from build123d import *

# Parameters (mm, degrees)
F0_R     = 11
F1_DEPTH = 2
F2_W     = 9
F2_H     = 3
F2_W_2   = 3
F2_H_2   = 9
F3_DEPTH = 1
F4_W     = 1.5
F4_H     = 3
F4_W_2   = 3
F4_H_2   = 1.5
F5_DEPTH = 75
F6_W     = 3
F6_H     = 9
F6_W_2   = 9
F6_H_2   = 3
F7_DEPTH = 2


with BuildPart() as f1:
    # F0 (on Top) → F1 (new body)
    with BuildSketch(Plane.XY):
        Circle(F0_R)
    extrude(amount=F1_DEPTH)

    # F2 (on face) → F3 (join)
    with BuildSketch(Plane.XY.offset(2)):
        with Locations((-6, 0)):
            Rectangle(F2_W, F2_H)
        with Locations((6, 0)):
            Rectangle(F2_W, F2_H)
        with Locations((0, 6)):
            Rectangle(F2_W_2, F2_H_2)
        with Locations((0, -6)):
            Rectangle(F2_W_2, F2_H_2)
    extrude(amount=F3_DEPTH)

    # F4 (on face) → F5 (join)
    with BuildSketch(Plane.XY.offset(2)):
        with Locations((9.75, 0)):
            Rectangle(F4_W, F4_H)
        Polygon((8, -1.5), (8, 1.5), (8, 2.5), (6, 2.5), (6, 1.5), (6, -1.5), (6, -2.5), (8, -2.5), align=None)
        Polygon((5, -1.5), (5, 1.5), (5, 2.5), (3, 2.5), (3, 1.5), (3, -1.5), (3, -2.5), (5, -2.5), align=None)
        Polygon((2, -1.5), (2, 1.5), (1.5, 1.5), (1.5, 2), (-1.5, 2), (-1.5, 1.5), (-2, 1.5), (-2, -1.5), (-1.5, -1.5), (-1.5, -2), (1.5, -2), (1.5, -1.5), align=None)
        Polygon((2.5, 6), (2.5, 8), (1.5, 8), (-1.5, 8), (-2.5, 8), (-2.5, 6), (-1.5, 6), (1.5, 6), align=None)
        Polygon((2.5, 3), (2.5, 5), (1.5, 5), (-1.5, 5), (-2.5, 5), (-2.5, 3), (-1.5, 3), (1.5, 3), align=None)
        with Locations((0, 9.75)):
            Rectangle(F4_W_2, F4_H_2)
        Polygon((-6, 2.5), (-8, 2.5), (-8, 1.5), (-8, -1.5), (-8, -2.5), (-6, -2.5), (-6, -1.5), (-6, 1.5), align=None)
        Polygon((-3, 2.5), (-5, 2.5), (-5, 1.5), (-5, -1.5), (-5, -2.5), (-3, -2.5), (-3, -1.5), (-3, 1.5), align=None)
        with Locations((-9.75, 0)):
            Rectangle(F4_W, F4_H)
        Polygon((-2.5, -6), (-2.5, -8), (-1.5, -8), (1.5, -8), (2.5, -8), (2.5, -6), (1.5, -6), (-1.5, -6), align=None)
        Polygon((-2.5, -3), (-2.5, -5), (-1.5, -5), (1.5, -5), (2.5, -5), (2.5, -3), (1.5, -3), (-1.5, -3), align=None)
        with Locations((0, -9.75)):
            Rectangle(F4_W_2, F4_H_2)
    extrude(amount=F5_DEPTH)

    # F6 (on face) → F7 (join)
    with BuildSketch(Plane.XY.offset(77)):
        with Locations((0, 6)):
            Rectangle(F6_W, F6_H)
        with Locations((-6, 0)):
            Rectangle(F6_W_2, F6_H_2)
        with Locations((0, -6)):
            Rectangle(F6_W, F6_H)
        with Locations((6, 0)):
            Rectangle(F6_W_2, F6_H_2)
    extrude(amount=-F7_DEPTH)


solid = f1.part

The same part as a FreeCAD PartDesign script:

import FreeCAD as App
import Part
import Sketcher

V = App.Vector

doc = App.newDocument("Part")
body = doc.addObject("PartDesign::Body", "Body")

sketch1 = doc.addObject("Sketcher::SketchObject", "Sketch")
body.addObject(sketch1)
sketch1.AttachmentSupport = (doc.XY_Plane, [""])
sketch1.MapMode = "FlatFace"
sketch1.addGeometry(Part.Circle(V(0, 0, 0), V(0, 0, 1), 11), False)
sketch1.addConstraint([
    Sketcher.Constraint("Coincident", 0, 3, -1, 1),
    Sketcher.Constraint("Diameter", 0, 22.0),
])
pad1 = doc.addObject("PartDesign::Pad", "Pad")
body.addObject(pad1)
pad1.Profile = sketch1
pad1.Length = 2

sketch2 = doc.addObject("Sketcher::SketchObject", "Sketch001")
body.addObject(sketch2)
sketch2.AttachmentSupport = (doc.XY_Plane, [""])
sketch2.MapMode = "FlatFace"
sketch2.AttachmentOffset = App.Placement(V(0, 0, 2), App.Rotation())
sketch2.addGeometry([
    Part.LineSegment(V(-10.5, 1.5, 0), V(-10.5, -1.5, 0)),
    Part.LineSegment(V(-10.5, -1.5, 0), V(-1.5, -1.5, 0)),
    Part.LineSegment(V(-1.5, -1.5, 0), V(-1.5, 1.5, 0)),
    Part.LineSegment(V(-1.5, 1.5, 0), V(-10.5, 1.5, 0)),
    Part.LineSegment(V(1.5, 1.5, 0), V(1.5, -1.5, 0)),
    Part.LineSegment(V(1.5, -1.5, 0), V(10.5, -1.5, 0)),
    Part.LineSegment(V(10.5, -1.5, 0), V(10.5, 1.5, 0)),
    Part.LineSegment(V(10.5, 1.5, 0), V(1.5, 1.5, 0)),
    Part.LineSegment(V(-1.5, 10.5, 0), V(-1.5, 1.5, 0)),
    Part.LineSegment(V(-1.5, 1.5, 0), V(1.5, 1.5, 0)),
    Part.LineSegment(V(1.5, 1.5, 0), V(1.5, 10.5, 0)),
    Part.LineSegment(V(1.5, 10.5, 0), V(-1.5, 10.5, 0)),
    Part.LineSegment(V(-1.5, -1.5, 0), V(-1.5, -10.5, 0)),
    Part.LineSegment(V(-1.5, -10.5, 0), V(1.5, -10.5, 0)),
    Part.LineSegment(V(1.5, -10.5, 0), V(1.5, -1.5, 0)),
    Part.LineSegment(V(1.5, -1.5, 0), V(-1.5, -1.5, 0)),
], False)
sketch2.addConstraint([
    Sketcher.Constraint("Coincident", 0, 2, 1, 1),
    Sketcher.Constraint("Coincident", 1, 2, 2, 1),
    Sketcher.Constraint("Coincident", 2, 2, 3, 1),
    Sketcher.Constraint("Coincident", 3, 2, 0, 1),
    Sketcher.Constraint("Coincident", 4, 2, 5, 1),
    Sketcher.Constraint("Coincident", 5, 2, 6, 1),
    Sketcher.Constraint("Coincident", 6, 2, 7, 1),
    Sketcher.Constraint("Coincident", 7, 2, 4, 1),
    Sketcher.Constraint("Coincident", 8, 2, 9, 1),
    Sketcher.Constraint("Coincident", 9, 2, 10, 1),
    Sketcher.Constraint("Coincident", 10, 2, 11, 1),
    Sketcher.Constraint("Coincident", 11, 2, 8, 1),
    Sketcher.Constraint("Coincident", 12, 2, 13, 1),
    Sketcher.Constraint("Coincident", 13, 2, 14, 1),
    Sketcher.Constraint("Coincident", 14, 2, 15, 1),
    Sketcher.Constraint("Coincident", 15, 2, 12, 1),
    Sketcher.Constraint("Vertical", 0),
    Sketcher.Constraint("Horizontal", 1),
    Sketcher.Constraint("Vertical", 2),
    Sketcher.Constraint("Horizontal", 3),
    Sketcher.Constraint("Vertical", 4),
    Sketcher.Constraint("Horizontal", 5),
    Sketcher.Constraint("Vertical", 6),
    Sketcher.Constraint("Horizontal", 7),
    Sketcher.Constraint("Vertical", 8),
    Sketcher.Constraint("Horizontal", 9),
    Sketcher.Constraint("Vertical", 10),
    Sketcher.Constraint("Horizontal", 11),
    Sketcher.Constraint("Vertical", 12),
    Sketcher.Constraint("Horizontal", 13),
    Sketcher.Constraint("Vertical", 14),
    Sketcher.Constraint("Horizontal", 15),
    Sketcher.Constraint("Coincident", 8, 2, 2, 2),
    Sketcher.Constraint("Coincident", 9, 2, 7, 2),
    Sketcher.Constraint("Coincident", 14, 2, 4, 2),
    Sketcher.Constraint("Coincident", 15, 2, 1, 2),
    Sketcher.Constraint("Symmetric", 2, 2, 4, 2, -1, 1),
    Sketcher.Constraint("Equal", 3, 5),
    Sketcher.Constraint("Equal", 15, 0),
    Sketcher.Constraint("Equal", 7, 8),
    Sketcher.Constraint("Equal", 10, 12),
    Sketcher.Constraint("DistanceX", 1, 1, 1, 2, 9.0),
    Sketcher.Constraint("DistanceX", 9, 1, 9, 2, 3.0),
])
pad2 = doc.addObject("PartDesign::Pad", "Pad001")
body.addObject(pad2)
pad2.Profile = sketch2
pad2.Length = 1

sketch3 = doc.addObject("Sketcher::SketchObject", "Sketch002")
body.addObject(sketch3)
sketch3.AttachmentSupport = (doc.XY_Plane, [""])
sketch3.MapMode = "FlatFace"
sketch3.AttachmentOffset = App.Placement(V(0, 0, 2), App.Rotation())
sketch3.addGeometry([
    Part.LineSegment(V(9, 1.5, 0), V(9, -1.5, 0)),
    Part.LineSegment(V(9, -1.5, 0), V(10.5, -1.5, 0)),
    Part.LineSegment(V(10.5, -1.5, 0), V(10.5, 1.5, 0)),
    Part.LineSegment(V(10.5, 1.5, 0), V(9, 1.5, 0)),
    Part.LineSegment(V(8, 2.5, 0), V(6, 2.5, 0)),
    Part.LineSegment(V(6, 2.5, 0), V(6, -2.5, 0)),
    Part.LineSegment(V(6, -2.5, 0), V(8, -2.5, 0)),
    Part.LineSegment(V(8, -2.5, 0), V(8, 2.5, 0)),
    Part.LineSegment(V(5, 2.5, 0), V(3, 2.5, 0)),
    Part.LineSegment(V(3, 2.5, 0), V(3, -2.5, 0)),
    Part.LineSegment(V(3, -2.5, 0), V(5, -2.5, 0)),
    Part.LineSegment(V(5, -2.5, 0), V(5, 2.5, 0)),
    Part.LineSegment(V(2, -1.5, 0), V(2, 1.5, 0)),
    Part.LineSegment(V(2, 1.5, 0), V(1.5, 1.5, 0)),
    Part.LineSegment(V(1.5, 1.5, 0), V(1.5, 2, 0)),
    Part.LineSegment(V(1.5, 2, 0), V(-1.5, 2, 0)),
    Part.LineSegment(V(-1.5, 2, 0), V(-1.5, 1.5, 0)),
    Part.LineSegment(V(-1.5, 1.5, 0), V(-2, 1.5, 0)),
    Part.LineSegment(V(-2, 1.5, 0), V(-2, -1.5, 0)),
    Part.LineSegment(V(-2, -1.5, 0), V(-1.5, -1.5, 0)),
    Part.LineSegment(V(-1.5, -1.5, 0), V(-1.5, -2, 0)),
    Part.LineSegment(V(-1.5, -2, 0), V(1.5, -2, 0)),
    Part.LineSegment(V(1.5, -2, 0), V(1.5, -1.5, 0)),
    Part.LineSegment(V(1.5, -1.5, 0), V(2, -1.5, 0)),
    Part.LineSegment(V(2.5, 6, 0), V(2.5, 8, 0)),
    Part.LineSegment(V(2.5, 8, 0), V(-2.5, 8, 0)),
    Part.LineSegment(V(-2.5, 8, 0), V(-2.5, 6, 0)),
    Part.LineSegment(V(-2.5, 6, 0), V(2.5, 6, 0)),
    Part.LineSegment(V(2.5, 3, 0), V(2.5, 5, 0)),
    Part.LineSegment(V(2.5, 5, 0), V(-2.5, 5, 0)),
    Part.LineSegment(V(-2.5, 5, 0), V(-2.5, 3, 0)),
    Part.LineSegment(V(-2.5, 3, 0), V(2.5, 3, 0)),
    Part.LineSegment(V(-1.5, 10.5, 0), V(-1.5, 9, 0)),
    Part.LineSegment(V(-1.5, 9, 0), V(1.5, 9, 0)),
    Part.LineSegment(V(1.5, 9, 0), V(1.5, 10.5, 0)),
    Part.LineSegment(V(1.5, 10.5, 0), V(-1.5, 10.5, 0)),
    Part.LineSegment(V(-6, 2.5, 0), V(-8, 2.5, 0)),
    Part.LineSegment(V(-8, 2.5, 0), V(-8, -2.5, 0)),
    Part.LineSegment(V(-8, -2.5, 0), V(-6, -2.5, 0)),
    Part.LineSegment(V(-6, -2.5, 0), V(-6, 2.5, 0)),
    Part.LineSegment(V(-3, 2.5, 0), V(-5, 2.5, 0)),
    Part.LineSegment(V(-5, 2.5, 0), V(-5, -2.5, 0)),
    Part.LineSegment(V(-5, -2.5, 0), V(-3, -2.5, 0)),
    Part.LineSegment(V(-3, -2.5, 0), V(-3, 2.5, 0)),
    Part.LineSegment(V(-10.5, 1.5, 0), V(-10.5, -1.5, 0)),
    Part.LineSegment(V(-10.5, -1.5, 0), V(-9, -1.5, 0)),
    Part.LineSegment(V(-9, -1.5, 0), V(-9, 1.5, 0)),
    Part.LineSegment(V(-9, 1.5, 0), V(-10.5, 1.5, 0)),
    Part.LineSegment(V(-2.5, -6, 0), V(-2.5, -8, 0)),
    Part.LineSegment(V(-2.5, -8, 0), V(2.5, -8, 0)),
    Part.LineSegment(V(2.5, -8, 0), V(2.5, -6, 0)),
    Part.LineSegment(V(2.5, -6, 0), V(-2.5, -6, 0)),
    Part.LineSegment(V(-2.5, -3, 0), V(-2.5, -5, 0)),
    Part.LineSegment(V(-2.5, -5, 0), V(2.5, -5, 0)),
    Part.LineSegment(V(2.5, -5, 0), V(2.5, -3, 0)),
    Part.LineSegment(V(2.5, -3, 0), V(-2.5, -3, 0)),
    Part.LineSegment(V(-1.5, -9, 0), V(-1.5, -10.5, 0)),
    Part.LineSegment(V(-1.5, -10.5, 0), V(1.5, -10.5, 0)),
    Part.LineSegment(V(1.5, -10.5, 0), V(1.5, -9, 0)),
    Part.LineSegment(V(1.5, -9, 0), V(-1.5, -9, 0)),
], False)
sketch3.addConstraint([
    Sketcher.Constraint("Coincident", 0, 2, 1, 1),
    Sketcher.Constraint("Coincident", 1, 2, 2, 1),
    Sketcher.Constraint("Coincident", 2, 2, 3, 1),
    Sketcher.Constraint("Coincident", 3, 2, 0, 1),
    Sketcher.Constraint("Coincident", 4, 2, 5, 1),
    Sketcher.Constraint("Coincident", 5, 2, 6, 1),
    Sketcher.Constraint("Coincident", 6, 2, 7, 1),
    Sketcher.Constraint("Coincident", 7, 2, 4, 1),
    Sketcher.Constraint("Coincident", 8, 2, 9, 1),
    Sketcher.Constraint("Coincident", 9, 2, 10, 1),
    Sketcher.Constraint("Coincident", 10, 2, 11, 1),
    Sketcher.Constraint("Coincident", 11, 2, 8, 1),
    Sketcher.Constraint("Coincident", 12, 2, 13, 1),
    Sketcher.Constraint("Coincident", 13, 2, 14, 1),
    Sketcher.Constraint("Coincident", 14, 2, 15, 1),
    Sketcher.Constraint("Coincident", 15, 2, 16, 1),
    Sketcher.Constraint("Coincident", 16, 2, 17, 1),
    Sketcher.Constraint("Coincident", 17, 2, 18, 1),
    Sketcher.Constraint("Coincident", 18, 2, 19, 1),
    Sketcher.Constraint("Coincident", 19, 2, 20, 1),
    Sketcher.Constraint("Coincident", 20, 2, 21, 1),
    Sketcher.Constraint("Coincident", 21, 2, 22, 1),
    Sketcher.Constraint("Coincident", 22, 2, 23, 1),
    Sketcher.Constraint("Coincident", 23, 2, 12, 1),
    Sketcher.Constraint("Coincident", 24, 2, 25, 1),
    Sketcher.Constraint("Coincident", 25, 2, 26, 1),
    Sketcher.Constraint("Coincident", 26, 2, 27, 1),
    Sketcher.Constraint("Coincident", 27, 2, 24, 1),
    Sketcher.Constraint("Coincident", 28, 2, 29, 1),
    Sketcher.Constraint("Coincident", 29, 2, 30, 1),
    Sketcher.Constraint("Coincident", 30, 2, 31, 1),
    Sketcher.Constraint("Coincident", 31, 2, 28, 1),
    Sketcher.Constraint("Coincident", 32, 2, 33, 1),
    Sketcher.Constraint("Coincident", 33, 2, 34, 1),
    Sketcher.Constraint("Coincident", 34, 2, 35, 1),
    Sketcher.Constraint("Coincident", 35, 2, 32, 1),
    Sketcher.Constraint("Coincident", 36, 2, 37, 1),
    Sketcher.Constraint("Coincident", 37, 2, 38, 1),
    Sketcher.Constraint("Coincident", 38, 2, 39, 1),
    Sketcher.Constraint("Coincident", 39, 2, 36, 1),
    Sketcher.Constraint("Coincident", 40, 2, 41, 1),
    Sketcher.Constraint("Coincident", 41, 2, 42, 1),
    Sketcher.Constraint("Coincident", 42, 2, 43, 1),
    Sketcher.Constraint("Coincident", 43, 2, 40, 1),
    Sketcher.Constraint("Coincident", 44, 2, 45, 1),
    Sketcher.Constraint("Coincident", 45, 2, 46, 1),
    Sketcher.Constraint("Coincident", 46, 2, 47, 1),
    Sketcher.Constraint("Coincident", 47, 2, 44, 1),
    Sketcher.Constraint("Coincident", 48, 2, 49, 1),
    Sketcher.Constraint("Coincident", 49, 2, 50, 1),
    Sketcher.Constraint("Coincident", 50, 2, 51, 1),
    Sketcher.Constraint("Coincident", 51, 2, 48, 1),
    Sketcher.Constraint("Coincident", 52, 2, 53, 1),
    Sketcher.Constraint("Coincident", 53, 2, 54, 1),
    Sketcher.Constraint("Coincident", 54, 2, 55, 1),
    Sketcher.Constraint("Coincident", 55, 2, 52, 1),
    Sketcher.Constraint("Coincident", 56, 2, 57, 1),
    Sketcher.Constraint("Coincident", 57, 2, 58, 1),
    Sketcher.Constraint("Coincident", 58, 2, 59, 1),
    Sketcher.Constraint("Coincident", 59, 2, 56, 1),
    Sketcher.Constraint("Vertical", 0),
    Sketcher.Constraint("Horizontal", 1),
    Sketcher.Constraint("Vertical", 2),
    Sketcher.Constraint("Horizontal", 3),
    Sketcher.Constraint("Horizontal", 4),
    Sketcher.Constraint("Vertical", 5),
    Sketcher.Constraint("Horizontal", 6),
    Sketcher.Constraint("Vertical", 7),
    Sketcher.Constraint("Horizontal", 8),
    Sketcher.Constraint("Vertical", 9),
    Sketcher.Constraint("Horizontal", 10),
    Sketcher.Constraint("Vertical", 11),
    Sketcher.Constraint("Vertical", 12),
    Sketcher.Constraint("Horizontal", 13),
    Sketcher.Constraint("Vertical", 14),
    Sketcher.Constraint("Horizontal", 15),
    Sketcher.Constraint("Vertical", 16),
    Sketcher.Constraint("Horizontal", 17),
    Sketcher.Constraint("Vertical", 18),
    Sketcher.Constraint("Horizontal", 19),
    Sketcher.Constraint("Vertical", 20),
    Sketcher.Constraint("Horizontal", 21),
    Sketcher.Constraint("Vertical", 22),
    Sketcher.Constraint("Horizontal", 23),
    Sketcher.Constraint("Vertical", 24),
    Sketcher.Constraint("Horizontal", 25),
    Sketcher.Constraint("Vertical", 26),
    Sketcher.Constraint("Horizontal", 27),
    Sketcher.Constraint("Vertical", 28),
    Sketcher.Constraint("Horizontal", 29),
    Sketcher.Constraint("Vertical", 30),
    Sketcher.Constraint("Horizontal", 31),
    Sketcher.Constraint("Vertical", 32),
    Sketcher.Constraint("Horizontal", 33),
    Sketcher.Constraint("Vertical", 34),
    Sketcher.Constraint("Horizontal", 35),
    Sketcher.Constraint("Horizontal", 36),
    Sketcher.Constraint("Vertical", 37),
    Sketcher.Constraint("Horizontal", 38),
    Sketcher.Constraint("Vertical", 39),
    Sketcher.Constraint("Horizontal", 40),
    Sketcher.Constraint("Vertical", 41),
    Sketcher.Constraint("Horizontal", 42),
    Sketcher.Constraint("Vertical", 43),
    Sketcher.Constraint("Vertical", 44),
    Sketcher.Constraint("Horizontal", 45),
    Sketcher.Constraint("Vertical", 46),
    Sketcher.Constraint("Horizontal", 47),
    Sketcher.Constraint("Vertical", 48),
    Sketcher.Constraint("Horizontal", 49),
    Sketcher.Constraint("Vertical", 50),
    Sketcher.Constraint("Horizontal", 51),
    Sketcher.Constraint("Vertical", 52),
    Sketcher.Constraint("Horizontal", 53),
    Sketcher.Constraint("Vertical", 54),
    Sketcher.Constraint("Horizontal", 55),
    Sketcher.Constraint("Vertical", 56),
    Sketcher.Constraint("Horizontal", 57),
    Sketcher.Constraint("Vertical", 58),
    Sketcher.Constraint("Horizontal", 59),
    Sketcher.Constraint("Symmetric", 12, 2, 18, 2, -1, 1),
    Sketcher.Constraint("Symmetric", 14, 2, 20, 2, -1, 1),
    Sketcher.Constraint("Symmetric", 16, 2, 22, 2, -1, 1),
    Sketcher.Constraint("Symmetric", 6, 2, 36, 2, -1, 1),
    Sketcher.Constraint("Symmetric", 4, 2, 38, 2, -1, 1),
    Sketcher.Constraint("Symmetric", 10, 2, 40, 2, -1, 1),
    Sketcher.Constraint("Symmetric", 8, 2, 42, 2, -1, 1),
    Sketcher.Constraint("Symmetric", 2, 2, 44, 2, -1, 1),
    Sketcher.Constraint("Symmetric", 0, 2, 46, 2, -1, 1),
    Sketcher.Constraint("Symmetric", 24, 2, 48, 2, -1, 1),
    Sketcher.Constraint("Symmetric", 26, 2, 50, 2, -1, 1),
    Sketcher.Constraint("Symmetric", 28, 2, 52, 2, -1, 1),
    Sketcher.Constraint("Symmetric", 30, 2, 54, 2, -1, 1),
    Sketcher.Constraint("Symmetric", 34, 2, 56, 2, -1, 1),
    Sketcher.Constraint("Symmetric", 32, 2, 58, 2, -1, 1),
    Sketcher.Constraint("Symmetric", 13, 2, 16, 2, -2),
    Sketcher.Constraint("Horizontal", 7, 2, 8, 2),
    Sketcher.Constraint("Horizontal", 6, 2, 9, 2),
    Sketcher.Constraint("Horizontal", 3, 2, 12, 2),
    Sketcher.Constraint("Horizontal", 1, 2, 18, 2),
    Sketcher.Constraint("Horizontal", 11, 2, 36, 2),
    Sketcher.Constraint("Vertical", 27, 2, 28, 2),
    Sketcher.Constraint("Vertical", 26, 2, 29, 2),
    Sketcher.Constraint("Vertical", 20, 2, 32, 2),
    Sketcher.Constraint("Vertical", 22, 2, 33, 2),
    Sketcher.Constraint("Vertical", 30, 2, 48, 2),
    Sketcher.Constraint("Equal", 6, 8),
    Sketcher.Constraint("Equal", 59, 0),
    Sketcher.Constraint("Equal", 55, 5),
    Sketcher.Constraint("Equal", 23, 14),
    Sketcher.Constraint("Equal", 42, 24),
    Sketcher.Constraint("Equal", 26, 28),
    Sketcher.Constraint("Equal", 47, 32),
    Sketcher.Constraint("DistanceX", 4, 2, 4, 1, 2.0),
    Sketcher.Constraint("DistanceX", 15, 2, 15, 1, 3.0),
    Sketcher.Constraint("DistanceX", 25, 2, 25, 1, 5.0),
    Sketcher.Constraint("DistanceX", 1, 1, 1, 2, 1.5),
    Sketcher.Constraint("DistanceX", 13, 2, 13, 1, 0.5),
    Sketcher.Constraint("DistanceX", -1, 1, 0, 2, 9.0),
    Sketcher.Constraint("DistanceX", -1, 1, 4, 2, 6.0),
    Sketcher.Constraint("DistanceX", -1, 1, 8, 2, 3.0),
    Sketcher.Constraint("DistanceY", -1, 1, 24, 2, 8.0),
    Sketcher.Constraint("DistanceY", -1, 1, 28, 2, 5.0),
    Sketcher.Constraint("DistanceY", -1, 1, 32, 2, 9.0),
])
pad3 = doc.addObject("PartDesign::Pad", "Pad002")
body.addObject(pad3)
pad3.Profile = sketch3
pad3.Length = 75

sketch4 = doc.addObject("Sketcher::SketchObject", "Sketch003")
body.addObject(sketch4)
sketch4.AttachmentSupport = (doc.XY_Plane, [""])
sketch4.MapMode = "FlatFace"
sketch4.AttachmentOffset = App.Placement(V(0, 0, 77), App.Rotation())
sketch4.addGeometry([
    Part.LineSegment(V(-1.5, 10.5, 0), V(-1.5, 1.5, 0)),
    Part.LineSegment(V(-1.5, 1.5, 0), V(1.5, 1.5, 0)),
    Part.LineSegment(V(1.5, 1.5, 0), V(1.5, 10.5, 0)),
    Part.LineSegment(V(1.5, 10.5, 0), V(-1.5, 10.5, 0)),
    Part.LineSegment(V(-10.5, 1.5, 0), V(-10.5, -1.5, 0)),
    Part.LineSegment(V(-10.5, -1.5, 0), V(-1.5, -1.5, 0)),
    Part.LineSegment(V(-1.5, -1.5, 0), V(-1.5, 1.5, 0)),
    Part.LineSegment(V(-1.5, 1.5, 0), V(-10.5, 1.5, 0)),
    Part.LineSegment(V(-1.5, -1.5, 0), V(-1.5, -10.5, 0)),
    Part.LineSegment(V(-1.5, -10.5, 0), V(1.5, -10.5, 0)),
    Part.LineSegment(V(1.5, -10.5, 0), V(1.5, -1.5, 0)),
    Part.LineSegment(V(1.5, -1.5, 0), V(-1.5, -1.5, 0)),
    Part.LineSegment(V(1.5, 1.5, 0), V(1.5, -1.5, 0)),
    Part.LineSegment(V(1.5, -1.5, 0), V(10.5, -1.5, 0)),
    Part.LineSegment(V(10.5, -1.5, 0), V(10.5, 1.5, 0)),
    Part.LineSegment(V(10.5, 1.5, 0), V(1.5, 1.5, 0)),
], False)
sketch4.addConstraint([
    Sketcher.Constraint("Coincident", 0, 2, 1, 1),
    Sketcher.Constraint("Coincident", 1, 2, 2, 1),
    Sketcher.Constraint("Coincident", 2, 2, 3, 1),
    Sketcher.Constraint("Coincident", 3, 2, 0, 1),
    Sketcher.Constraint("Coincident", 4, 2, 5, 1),
    Sketcher.Constraint("Coincident", 5, 2, 6, 1),
    Sketcher.Constraint("Coincident", 6, 2, 7, 1),
    Sketcher.Constraint("Coincident", 7, 2, 4, 1),
    Sketcher.Constraint("Coincident", 8, 2, 9, 1),
    Sketcher.Constraint("Coincident", 9, 2, 10, 1),
    Sketcher.Constraint("Coincident", 10, 2, 11, 1),
    Sketcher.Constraint("Coincident", 11, 2, 8, 1),
    Sketcher.Constraint("Coincident", 12, 2, 13, 1),
    Sketcher.Constraint("Coincident", 13, 2, 14, 1),
    Sketcher.Constraint("Coincident", 14, 2, 15, 1),
    Sketcher.Constraint("Coincident", 15, 2, 12, 1),
    Sketcher.Constraint("Vertical", 0),
    Sketcher.Constraint("Horizontal", 1),
    Sketcher.Constraint("Vertical", 2),
    Sketcher.Constraint("Horizontal", 3),
    Sketcher.Constraint("Vertical", 4),
    Sketcher.Constraint("Horizontal", 5),
    Sketcher.Constraint("Vertical", 6),
    Sketcher.Constraint("Horizontal", 7),
    Sketcher.Constraint("Vertical", 8),
    Sketcher.Constraint("Horizontal", 9),
    Sketcher.Constraint("Vertical", 10),
    Sketcher.Constraint("Horizontal", 11),
    Sketcher.Constraint("Vertical", 12),
    Sketcher.Constraint("Horizontal", 13),
    Sketcher.Constraint("Vertical", 14),
    Sketcher.Constraint("Horizontal", 15),
    Sketcher.Constraint("Coincident", 6, 2, 0, 2),
    Sketcher.Constraint("Coincident", 11, 2, 5, 2),
    Sketcher.Constraint("Coincident", 12, 2, 10, 2),
    Sketcher.Constraint("Coincident", 15, 2, 1, 2),
    Sketcher.Constraint("Symmetric", 1, 2, 5, 2, -1, 1),
    Sketcher.Constraint("Equal", 7, 13),
    Sketcher.Constraint("Equal", 15, 0),
    Sketcher.Constraint("Equal", 11, 4),
    Sketcher.Constraint("Equal", 2, 8),
    Sketcher.Constraint("DistanceX", 1, 1, 1, 2, 3.0),
    Sketcher.Constraint("DistanceX", 5, 1, 5, 2, 9.0),
])
pad4 = doc.addObject("PartDesign::Pad", "Pad003")
body.addObject(pad4)
pad4.Profile = sketch4
pad4.Length = 2
pad4.Reversed = True

doc.recompute()
